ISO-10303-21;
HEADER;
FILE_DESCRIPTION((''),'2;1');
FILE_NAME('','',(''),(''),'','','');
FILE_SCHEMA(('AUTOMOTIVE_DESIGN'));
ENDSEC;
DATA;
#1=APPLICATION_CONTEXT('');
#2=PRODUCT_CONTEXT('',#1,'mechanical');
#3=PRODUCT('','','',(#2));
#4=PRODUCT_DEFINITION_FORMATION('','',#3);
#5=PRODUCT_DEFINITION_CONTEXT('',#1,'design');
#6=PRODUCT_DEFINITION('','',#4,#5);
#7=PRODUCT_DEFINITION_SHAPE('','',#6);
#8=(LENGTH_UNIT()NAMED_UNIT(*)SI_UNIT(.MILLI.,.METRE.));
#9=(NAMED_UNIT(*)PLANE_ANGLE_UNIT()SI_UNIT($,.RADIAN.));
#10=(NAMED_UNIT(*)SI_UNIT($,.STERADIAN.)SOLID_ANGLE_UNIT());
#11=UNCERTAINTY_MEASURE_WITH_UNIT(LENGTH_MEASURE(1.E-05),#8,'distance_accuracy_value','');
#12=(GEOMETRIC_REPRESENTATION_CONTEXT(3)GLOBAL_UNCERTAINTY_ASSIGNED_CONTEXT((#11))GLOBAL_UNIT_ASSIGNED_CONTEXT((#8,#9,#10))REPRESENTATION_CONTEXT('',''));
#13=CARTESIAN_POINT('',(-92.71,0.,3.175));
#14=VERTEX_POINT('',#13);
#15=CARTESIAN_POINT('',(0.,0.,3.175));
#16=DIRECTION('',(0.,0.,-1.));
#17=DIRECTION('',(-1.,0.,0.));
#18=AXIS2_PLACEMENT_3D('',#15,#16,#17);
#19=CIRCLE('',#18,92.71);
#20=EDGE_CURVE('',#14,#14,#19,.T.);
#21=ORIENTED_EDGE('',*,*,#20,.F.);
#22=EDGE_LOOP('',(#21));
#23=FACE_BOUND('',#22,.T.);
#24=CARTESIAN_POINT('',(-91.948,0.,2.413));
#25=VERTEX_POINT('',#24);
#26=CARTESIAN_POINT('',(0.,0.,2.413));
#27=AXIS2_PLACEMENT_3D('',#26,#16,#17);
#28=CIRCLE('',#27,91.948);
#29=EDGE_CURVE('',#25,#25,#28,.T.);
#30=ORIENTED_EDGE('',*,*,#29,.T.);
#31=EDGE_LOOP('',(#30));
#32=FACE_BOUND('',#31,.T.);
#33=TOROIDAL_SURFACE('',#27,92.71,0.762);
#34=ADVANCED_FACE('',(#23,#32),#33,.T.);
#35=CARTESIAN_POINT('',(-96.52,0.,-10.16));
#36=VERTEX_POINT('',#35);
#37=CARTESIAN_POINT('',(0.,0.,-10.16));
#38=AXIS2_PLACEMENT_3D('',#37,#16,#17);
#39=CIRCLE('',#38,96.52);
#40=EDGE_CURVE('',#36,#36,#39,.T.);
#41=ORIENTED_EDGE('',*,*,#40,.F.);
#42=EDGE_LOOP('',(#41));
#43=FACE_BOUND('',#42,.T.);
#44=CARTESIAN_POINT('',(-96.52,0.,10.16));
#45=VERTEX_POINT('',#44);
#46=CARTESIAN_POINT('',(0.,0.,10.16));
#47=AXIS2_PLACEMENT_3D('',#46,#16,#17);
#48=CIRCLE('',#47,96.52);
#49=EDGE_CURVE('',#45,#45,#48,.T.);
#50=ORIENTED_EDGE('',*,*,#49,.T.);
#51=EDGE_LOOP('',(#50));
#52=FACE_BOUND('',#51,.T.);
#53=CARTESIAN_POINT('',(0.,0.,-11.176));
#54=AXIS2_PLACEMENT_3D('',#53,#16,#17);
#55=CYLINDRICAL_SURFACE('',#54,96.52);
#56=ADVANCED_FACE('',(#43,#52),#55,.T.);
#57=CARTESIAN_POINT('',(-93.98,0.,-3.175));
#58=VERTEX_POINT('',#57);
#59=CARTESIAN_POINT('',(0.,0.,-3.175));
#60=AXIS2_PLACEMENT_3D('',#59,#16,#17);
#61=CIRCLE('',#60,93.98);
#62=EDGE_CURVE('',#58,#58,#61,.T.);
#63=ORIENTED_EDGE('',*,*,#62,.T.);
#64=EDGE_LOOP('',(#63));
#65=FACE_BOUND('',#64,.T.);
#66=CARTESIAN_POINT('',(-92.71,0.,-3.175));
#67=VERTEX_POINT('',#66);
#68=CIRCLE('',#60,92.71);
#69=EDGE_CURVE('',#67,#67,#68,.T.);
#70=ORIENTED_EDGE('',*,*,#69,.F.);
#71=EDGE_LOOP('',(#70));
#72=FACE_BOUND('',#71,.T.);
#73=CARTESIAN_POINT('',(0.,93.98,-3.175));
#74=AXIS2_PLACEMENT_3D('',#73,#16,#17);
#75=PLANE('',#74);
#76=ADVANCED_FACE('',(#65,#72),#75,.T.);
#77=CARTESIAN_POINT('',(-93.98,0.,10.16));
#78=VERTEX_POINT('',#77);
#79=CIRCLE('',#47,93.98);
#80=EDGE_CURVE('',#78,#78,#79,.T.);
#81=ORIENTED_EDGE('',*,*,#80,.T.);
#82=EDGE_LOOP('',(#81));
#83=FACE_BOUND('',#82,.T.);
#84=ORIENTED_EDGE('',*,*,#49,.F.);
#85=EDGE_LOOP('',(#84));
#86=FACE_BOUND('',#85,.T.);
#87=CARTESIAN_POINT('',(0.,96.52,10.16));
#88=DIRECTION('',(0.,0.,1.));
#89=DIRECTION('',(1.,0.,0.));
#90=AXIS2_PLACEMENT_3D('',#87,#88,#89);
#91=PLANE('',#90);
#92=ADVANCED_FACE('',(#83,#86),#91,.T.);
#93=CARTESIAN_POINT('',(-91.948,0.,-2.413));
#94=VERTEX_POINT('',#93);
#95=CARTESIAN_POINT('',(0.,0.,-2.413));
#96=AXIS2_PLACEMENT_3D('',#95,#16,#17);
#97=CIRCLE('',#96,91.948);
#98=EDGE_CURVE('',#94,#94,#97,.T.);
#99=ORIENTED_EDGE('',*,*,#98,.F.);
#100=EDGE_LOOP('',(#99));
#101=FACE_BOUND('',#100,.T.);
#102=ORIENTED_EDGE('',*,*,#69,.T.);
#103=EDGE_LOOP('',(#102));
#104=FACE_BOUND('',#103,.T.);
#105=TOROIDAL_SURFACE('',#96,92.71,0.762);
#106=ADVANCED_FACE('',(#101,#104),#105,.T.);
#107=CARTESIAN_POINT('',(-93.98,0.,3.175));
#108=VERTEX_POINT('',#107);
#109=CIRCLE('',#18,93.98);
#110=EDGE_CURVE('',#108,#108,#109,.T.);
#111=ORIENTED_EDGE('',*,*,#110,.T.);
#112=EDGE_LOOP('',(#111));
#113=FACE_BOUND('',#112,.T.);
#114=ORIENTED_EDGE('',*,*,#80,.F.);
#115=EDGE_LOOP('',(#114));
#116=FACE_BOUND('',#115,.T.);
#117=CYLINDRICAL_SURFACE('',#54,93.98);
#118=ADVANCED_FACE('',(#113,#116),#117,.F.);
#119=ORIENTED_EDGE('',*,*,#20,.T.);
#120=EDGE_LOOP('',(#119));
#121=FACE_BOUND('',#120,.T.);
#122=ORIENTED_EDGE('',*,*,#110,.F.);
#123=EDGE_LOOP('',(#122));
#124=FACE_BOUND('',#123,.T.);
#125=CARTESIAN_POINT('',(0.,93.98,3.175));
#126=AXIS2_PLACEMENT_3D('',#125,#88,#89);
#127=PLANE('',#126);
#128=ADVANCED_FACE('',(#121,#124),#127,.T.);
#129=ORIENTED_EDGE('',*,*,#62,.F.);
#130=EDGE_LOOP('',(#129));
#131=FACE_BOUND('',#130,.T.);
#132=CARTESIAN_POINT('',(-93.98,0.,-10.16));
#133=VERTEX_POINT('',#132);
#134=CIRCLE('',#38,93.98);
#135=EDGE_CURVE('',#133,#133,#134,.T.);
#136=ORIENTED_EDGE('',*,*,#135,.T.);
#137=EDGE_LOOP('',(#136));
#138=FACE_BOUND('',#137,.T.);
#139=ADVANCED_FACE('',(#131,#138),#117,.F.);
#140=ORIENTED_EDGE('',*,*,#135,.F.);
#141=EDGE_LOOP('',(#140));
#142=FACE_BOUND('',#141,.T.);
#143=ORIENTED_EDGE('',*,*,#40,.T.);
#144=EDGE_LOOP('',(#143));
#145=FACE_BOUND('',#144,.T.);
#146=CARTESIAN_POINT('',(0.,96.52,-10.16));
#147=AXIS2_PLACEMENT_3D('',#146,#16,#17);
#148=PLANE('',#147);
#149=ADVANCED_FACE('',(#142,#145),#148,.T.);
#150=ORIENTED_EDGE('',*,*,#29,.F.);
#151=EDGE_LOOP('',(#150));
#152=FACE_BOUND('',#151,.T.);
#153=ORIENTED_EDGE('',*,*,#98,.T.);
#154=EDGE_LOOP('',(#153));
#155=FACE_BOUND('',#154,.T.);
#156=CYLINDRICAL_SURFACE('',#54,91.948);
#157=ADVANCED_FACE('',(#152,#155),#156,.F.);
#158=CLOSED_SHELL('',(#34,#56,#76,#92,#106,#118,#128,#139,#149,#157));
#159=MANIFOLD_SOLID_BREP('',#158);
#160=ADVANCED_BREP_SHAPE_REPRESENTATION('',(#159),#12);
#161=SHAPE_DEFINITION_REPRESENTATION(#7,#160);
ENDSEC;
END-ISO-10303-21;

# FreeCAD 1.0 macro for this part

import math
import FreeCAD as App
import Part
import Sketcher
Q = App.Units.Quantity

doc = App.newDocument("Part")
body = doc.addObject("PartDesign::Body", "Body")

# Sketch on YZ plane
sketch1 = body.newObject("Sketcher::SketchObject", "Sketch")
sketch1.AttachmentSupport = (doc.getObject("YZ_Plane"), [""])
sketch1.MapMode = "FlatFace"
sketch1.addGeometry(Part.LineSegment(App.Vector(94, 3.2, 0), App.Vector(92.7, 3.2, 0)), False)
sketch1.addGeometry(Part.ArcOfCircle(Part.Circle(App.Vector(92.7, 2.4, 0), App.Vector(0, 0, 1), 0.8), math.radians(90), math.radians(180)), False)
sketch1.addGeometry(Part.LineSegment(App.Vector(91.9, 2.4, 0), App.Vector(91.9, -2.4, 0)), False)
sketch1.addGeometry(Part.ArcOfCircle(Part.Circle(App.Vector(92.7, -2.4, 0), App.Vector(0, 0, 1), 0.8), math.radians(-180), math.radians(-90)), False)
sketch1.addGeometry(Part.LineSegment(App.Vector(92.7, -3.2, 0), App.Vector(94, -3.2, 0)), False)
sketch1.addGeometry(Part.LineSegment(App.Vector(94, -3.2, 0), App.Vector(94, -10.2, 0)), False)
sketch1.addGeometry(Part.LineSegment(App.Vector(94, -10.2, 0), App.Vector(96.5, -10.2, 0)), False)
sketch1.addGeometry(Part.LineSegment(App.Vector(96.5, -10.2, 0), App.Vector(96.5, 10.2, 0)), False)
sketch1.addGeometry(Part.LineSegment(App.Vector(96.5, 10.2, 0), App.Vector(94, 10.2, 0)), False)
sketch1.addGeometry(Part.LineSegment(App.Vector(94, 10.2, 0), App.Vector(94, 3.2, 0)), False)
sketch1.addConstraint(Sketcher.Constraint("Tangent", 0, 2, 1, 1))
sketch1.addConstraint(Sketcher.Constraint("Tangent", 1, 2, 2, 1))
sketch1.addConstraint(Sketcher.Constraint("Tangent", 2, 2, 3, 1))
sketch1.addConstraint(Sketcher.Constraint("Tangent", 3, 2, 4, 1))
sketch1.addConstraint(Sketcher.Constraint("Coincident", 4, 2, 5, 1))
sketch1.addConstraint(Sketcher.Constraint("Coincident", 5, 2, 6, 1))
sketch1.addConstraint(Sketcher.Constraint("Coincident", 6, 2, 7, 1))
sketch1.addConstraint(Sketcher.Constraint("Coincident", 7, 2, 8, 1))
sketch1.addConstraint(Sketcher.Constraint("Coincident", 8, 2, 9, 1))
sketch1.addConstraint(Sketcher.Constraint("Coincident", 9, 2, 0, 1))
sketch1.addConstraint(Sketcher.Constraint("Horizontal", 0))
sketch1.addConstraint(Sketcher.Constraint("Vertical", 2))
sketch1.addConstraint(Sketcher.Constraint("Horizontal", 4))
sketch1.addConstraint(Sketcher.Constraint("Vertical", 5))
sketch1.addConstraint(Sketcher.Constraint("Horizontal", 6))
sketch1.addConstraint(Sketcher.Constraint("Vertical", 7))
sketch1.addConstraint(Sketcher.Constraint("Horizontal", 8))
sketch1.addConstraint(Sketcher.Constraint("Vertical", 9))
sketch1.addConstraint(Sketcher.Constraint("Equal", 1, 3))
sketch1.addConstraint(Sketcher.Constraint("Symmetric", 5, 2, 8, 2, -1))
sketch1.addConstraint(Sketcher.Constraint("Equal", 5, 9))
sketch1.addConstraint(Sketcher.Constraint("Radius", 1, Q("0.03 in")))
sketch1.addConstraint(Sketcher.Constraint("DistanceX", 6, 1, 6, 2, Q("0.1 in")))
sketch1.addConstraint(Sketcher.Constraint("DistanceY", 7, 1, 7, 2, Q("0.8 in")))
sketch1.addConstraint(Sketcher.Constraint("DistanceX", 0, 2, 0, 1, Q("0.05 in")))
sketch1.addConstraint(Sketcher.Constraint("DistanceY", 2, 2, 2, 1, Q("0.19 in")))
sketch1.addConstraint(Sketcher.Constraint("DistanceX", -1, 1, 4, 2, Q("3.7 in")))
revolution = body.newObject("PartDesign::Revolution", "Revolution")
revolution.Profile = sketch1
revolution.ReferenceAxis = (sketch1, ["V_Axis"])
revolution.Angle = 360

doc.recompute()
